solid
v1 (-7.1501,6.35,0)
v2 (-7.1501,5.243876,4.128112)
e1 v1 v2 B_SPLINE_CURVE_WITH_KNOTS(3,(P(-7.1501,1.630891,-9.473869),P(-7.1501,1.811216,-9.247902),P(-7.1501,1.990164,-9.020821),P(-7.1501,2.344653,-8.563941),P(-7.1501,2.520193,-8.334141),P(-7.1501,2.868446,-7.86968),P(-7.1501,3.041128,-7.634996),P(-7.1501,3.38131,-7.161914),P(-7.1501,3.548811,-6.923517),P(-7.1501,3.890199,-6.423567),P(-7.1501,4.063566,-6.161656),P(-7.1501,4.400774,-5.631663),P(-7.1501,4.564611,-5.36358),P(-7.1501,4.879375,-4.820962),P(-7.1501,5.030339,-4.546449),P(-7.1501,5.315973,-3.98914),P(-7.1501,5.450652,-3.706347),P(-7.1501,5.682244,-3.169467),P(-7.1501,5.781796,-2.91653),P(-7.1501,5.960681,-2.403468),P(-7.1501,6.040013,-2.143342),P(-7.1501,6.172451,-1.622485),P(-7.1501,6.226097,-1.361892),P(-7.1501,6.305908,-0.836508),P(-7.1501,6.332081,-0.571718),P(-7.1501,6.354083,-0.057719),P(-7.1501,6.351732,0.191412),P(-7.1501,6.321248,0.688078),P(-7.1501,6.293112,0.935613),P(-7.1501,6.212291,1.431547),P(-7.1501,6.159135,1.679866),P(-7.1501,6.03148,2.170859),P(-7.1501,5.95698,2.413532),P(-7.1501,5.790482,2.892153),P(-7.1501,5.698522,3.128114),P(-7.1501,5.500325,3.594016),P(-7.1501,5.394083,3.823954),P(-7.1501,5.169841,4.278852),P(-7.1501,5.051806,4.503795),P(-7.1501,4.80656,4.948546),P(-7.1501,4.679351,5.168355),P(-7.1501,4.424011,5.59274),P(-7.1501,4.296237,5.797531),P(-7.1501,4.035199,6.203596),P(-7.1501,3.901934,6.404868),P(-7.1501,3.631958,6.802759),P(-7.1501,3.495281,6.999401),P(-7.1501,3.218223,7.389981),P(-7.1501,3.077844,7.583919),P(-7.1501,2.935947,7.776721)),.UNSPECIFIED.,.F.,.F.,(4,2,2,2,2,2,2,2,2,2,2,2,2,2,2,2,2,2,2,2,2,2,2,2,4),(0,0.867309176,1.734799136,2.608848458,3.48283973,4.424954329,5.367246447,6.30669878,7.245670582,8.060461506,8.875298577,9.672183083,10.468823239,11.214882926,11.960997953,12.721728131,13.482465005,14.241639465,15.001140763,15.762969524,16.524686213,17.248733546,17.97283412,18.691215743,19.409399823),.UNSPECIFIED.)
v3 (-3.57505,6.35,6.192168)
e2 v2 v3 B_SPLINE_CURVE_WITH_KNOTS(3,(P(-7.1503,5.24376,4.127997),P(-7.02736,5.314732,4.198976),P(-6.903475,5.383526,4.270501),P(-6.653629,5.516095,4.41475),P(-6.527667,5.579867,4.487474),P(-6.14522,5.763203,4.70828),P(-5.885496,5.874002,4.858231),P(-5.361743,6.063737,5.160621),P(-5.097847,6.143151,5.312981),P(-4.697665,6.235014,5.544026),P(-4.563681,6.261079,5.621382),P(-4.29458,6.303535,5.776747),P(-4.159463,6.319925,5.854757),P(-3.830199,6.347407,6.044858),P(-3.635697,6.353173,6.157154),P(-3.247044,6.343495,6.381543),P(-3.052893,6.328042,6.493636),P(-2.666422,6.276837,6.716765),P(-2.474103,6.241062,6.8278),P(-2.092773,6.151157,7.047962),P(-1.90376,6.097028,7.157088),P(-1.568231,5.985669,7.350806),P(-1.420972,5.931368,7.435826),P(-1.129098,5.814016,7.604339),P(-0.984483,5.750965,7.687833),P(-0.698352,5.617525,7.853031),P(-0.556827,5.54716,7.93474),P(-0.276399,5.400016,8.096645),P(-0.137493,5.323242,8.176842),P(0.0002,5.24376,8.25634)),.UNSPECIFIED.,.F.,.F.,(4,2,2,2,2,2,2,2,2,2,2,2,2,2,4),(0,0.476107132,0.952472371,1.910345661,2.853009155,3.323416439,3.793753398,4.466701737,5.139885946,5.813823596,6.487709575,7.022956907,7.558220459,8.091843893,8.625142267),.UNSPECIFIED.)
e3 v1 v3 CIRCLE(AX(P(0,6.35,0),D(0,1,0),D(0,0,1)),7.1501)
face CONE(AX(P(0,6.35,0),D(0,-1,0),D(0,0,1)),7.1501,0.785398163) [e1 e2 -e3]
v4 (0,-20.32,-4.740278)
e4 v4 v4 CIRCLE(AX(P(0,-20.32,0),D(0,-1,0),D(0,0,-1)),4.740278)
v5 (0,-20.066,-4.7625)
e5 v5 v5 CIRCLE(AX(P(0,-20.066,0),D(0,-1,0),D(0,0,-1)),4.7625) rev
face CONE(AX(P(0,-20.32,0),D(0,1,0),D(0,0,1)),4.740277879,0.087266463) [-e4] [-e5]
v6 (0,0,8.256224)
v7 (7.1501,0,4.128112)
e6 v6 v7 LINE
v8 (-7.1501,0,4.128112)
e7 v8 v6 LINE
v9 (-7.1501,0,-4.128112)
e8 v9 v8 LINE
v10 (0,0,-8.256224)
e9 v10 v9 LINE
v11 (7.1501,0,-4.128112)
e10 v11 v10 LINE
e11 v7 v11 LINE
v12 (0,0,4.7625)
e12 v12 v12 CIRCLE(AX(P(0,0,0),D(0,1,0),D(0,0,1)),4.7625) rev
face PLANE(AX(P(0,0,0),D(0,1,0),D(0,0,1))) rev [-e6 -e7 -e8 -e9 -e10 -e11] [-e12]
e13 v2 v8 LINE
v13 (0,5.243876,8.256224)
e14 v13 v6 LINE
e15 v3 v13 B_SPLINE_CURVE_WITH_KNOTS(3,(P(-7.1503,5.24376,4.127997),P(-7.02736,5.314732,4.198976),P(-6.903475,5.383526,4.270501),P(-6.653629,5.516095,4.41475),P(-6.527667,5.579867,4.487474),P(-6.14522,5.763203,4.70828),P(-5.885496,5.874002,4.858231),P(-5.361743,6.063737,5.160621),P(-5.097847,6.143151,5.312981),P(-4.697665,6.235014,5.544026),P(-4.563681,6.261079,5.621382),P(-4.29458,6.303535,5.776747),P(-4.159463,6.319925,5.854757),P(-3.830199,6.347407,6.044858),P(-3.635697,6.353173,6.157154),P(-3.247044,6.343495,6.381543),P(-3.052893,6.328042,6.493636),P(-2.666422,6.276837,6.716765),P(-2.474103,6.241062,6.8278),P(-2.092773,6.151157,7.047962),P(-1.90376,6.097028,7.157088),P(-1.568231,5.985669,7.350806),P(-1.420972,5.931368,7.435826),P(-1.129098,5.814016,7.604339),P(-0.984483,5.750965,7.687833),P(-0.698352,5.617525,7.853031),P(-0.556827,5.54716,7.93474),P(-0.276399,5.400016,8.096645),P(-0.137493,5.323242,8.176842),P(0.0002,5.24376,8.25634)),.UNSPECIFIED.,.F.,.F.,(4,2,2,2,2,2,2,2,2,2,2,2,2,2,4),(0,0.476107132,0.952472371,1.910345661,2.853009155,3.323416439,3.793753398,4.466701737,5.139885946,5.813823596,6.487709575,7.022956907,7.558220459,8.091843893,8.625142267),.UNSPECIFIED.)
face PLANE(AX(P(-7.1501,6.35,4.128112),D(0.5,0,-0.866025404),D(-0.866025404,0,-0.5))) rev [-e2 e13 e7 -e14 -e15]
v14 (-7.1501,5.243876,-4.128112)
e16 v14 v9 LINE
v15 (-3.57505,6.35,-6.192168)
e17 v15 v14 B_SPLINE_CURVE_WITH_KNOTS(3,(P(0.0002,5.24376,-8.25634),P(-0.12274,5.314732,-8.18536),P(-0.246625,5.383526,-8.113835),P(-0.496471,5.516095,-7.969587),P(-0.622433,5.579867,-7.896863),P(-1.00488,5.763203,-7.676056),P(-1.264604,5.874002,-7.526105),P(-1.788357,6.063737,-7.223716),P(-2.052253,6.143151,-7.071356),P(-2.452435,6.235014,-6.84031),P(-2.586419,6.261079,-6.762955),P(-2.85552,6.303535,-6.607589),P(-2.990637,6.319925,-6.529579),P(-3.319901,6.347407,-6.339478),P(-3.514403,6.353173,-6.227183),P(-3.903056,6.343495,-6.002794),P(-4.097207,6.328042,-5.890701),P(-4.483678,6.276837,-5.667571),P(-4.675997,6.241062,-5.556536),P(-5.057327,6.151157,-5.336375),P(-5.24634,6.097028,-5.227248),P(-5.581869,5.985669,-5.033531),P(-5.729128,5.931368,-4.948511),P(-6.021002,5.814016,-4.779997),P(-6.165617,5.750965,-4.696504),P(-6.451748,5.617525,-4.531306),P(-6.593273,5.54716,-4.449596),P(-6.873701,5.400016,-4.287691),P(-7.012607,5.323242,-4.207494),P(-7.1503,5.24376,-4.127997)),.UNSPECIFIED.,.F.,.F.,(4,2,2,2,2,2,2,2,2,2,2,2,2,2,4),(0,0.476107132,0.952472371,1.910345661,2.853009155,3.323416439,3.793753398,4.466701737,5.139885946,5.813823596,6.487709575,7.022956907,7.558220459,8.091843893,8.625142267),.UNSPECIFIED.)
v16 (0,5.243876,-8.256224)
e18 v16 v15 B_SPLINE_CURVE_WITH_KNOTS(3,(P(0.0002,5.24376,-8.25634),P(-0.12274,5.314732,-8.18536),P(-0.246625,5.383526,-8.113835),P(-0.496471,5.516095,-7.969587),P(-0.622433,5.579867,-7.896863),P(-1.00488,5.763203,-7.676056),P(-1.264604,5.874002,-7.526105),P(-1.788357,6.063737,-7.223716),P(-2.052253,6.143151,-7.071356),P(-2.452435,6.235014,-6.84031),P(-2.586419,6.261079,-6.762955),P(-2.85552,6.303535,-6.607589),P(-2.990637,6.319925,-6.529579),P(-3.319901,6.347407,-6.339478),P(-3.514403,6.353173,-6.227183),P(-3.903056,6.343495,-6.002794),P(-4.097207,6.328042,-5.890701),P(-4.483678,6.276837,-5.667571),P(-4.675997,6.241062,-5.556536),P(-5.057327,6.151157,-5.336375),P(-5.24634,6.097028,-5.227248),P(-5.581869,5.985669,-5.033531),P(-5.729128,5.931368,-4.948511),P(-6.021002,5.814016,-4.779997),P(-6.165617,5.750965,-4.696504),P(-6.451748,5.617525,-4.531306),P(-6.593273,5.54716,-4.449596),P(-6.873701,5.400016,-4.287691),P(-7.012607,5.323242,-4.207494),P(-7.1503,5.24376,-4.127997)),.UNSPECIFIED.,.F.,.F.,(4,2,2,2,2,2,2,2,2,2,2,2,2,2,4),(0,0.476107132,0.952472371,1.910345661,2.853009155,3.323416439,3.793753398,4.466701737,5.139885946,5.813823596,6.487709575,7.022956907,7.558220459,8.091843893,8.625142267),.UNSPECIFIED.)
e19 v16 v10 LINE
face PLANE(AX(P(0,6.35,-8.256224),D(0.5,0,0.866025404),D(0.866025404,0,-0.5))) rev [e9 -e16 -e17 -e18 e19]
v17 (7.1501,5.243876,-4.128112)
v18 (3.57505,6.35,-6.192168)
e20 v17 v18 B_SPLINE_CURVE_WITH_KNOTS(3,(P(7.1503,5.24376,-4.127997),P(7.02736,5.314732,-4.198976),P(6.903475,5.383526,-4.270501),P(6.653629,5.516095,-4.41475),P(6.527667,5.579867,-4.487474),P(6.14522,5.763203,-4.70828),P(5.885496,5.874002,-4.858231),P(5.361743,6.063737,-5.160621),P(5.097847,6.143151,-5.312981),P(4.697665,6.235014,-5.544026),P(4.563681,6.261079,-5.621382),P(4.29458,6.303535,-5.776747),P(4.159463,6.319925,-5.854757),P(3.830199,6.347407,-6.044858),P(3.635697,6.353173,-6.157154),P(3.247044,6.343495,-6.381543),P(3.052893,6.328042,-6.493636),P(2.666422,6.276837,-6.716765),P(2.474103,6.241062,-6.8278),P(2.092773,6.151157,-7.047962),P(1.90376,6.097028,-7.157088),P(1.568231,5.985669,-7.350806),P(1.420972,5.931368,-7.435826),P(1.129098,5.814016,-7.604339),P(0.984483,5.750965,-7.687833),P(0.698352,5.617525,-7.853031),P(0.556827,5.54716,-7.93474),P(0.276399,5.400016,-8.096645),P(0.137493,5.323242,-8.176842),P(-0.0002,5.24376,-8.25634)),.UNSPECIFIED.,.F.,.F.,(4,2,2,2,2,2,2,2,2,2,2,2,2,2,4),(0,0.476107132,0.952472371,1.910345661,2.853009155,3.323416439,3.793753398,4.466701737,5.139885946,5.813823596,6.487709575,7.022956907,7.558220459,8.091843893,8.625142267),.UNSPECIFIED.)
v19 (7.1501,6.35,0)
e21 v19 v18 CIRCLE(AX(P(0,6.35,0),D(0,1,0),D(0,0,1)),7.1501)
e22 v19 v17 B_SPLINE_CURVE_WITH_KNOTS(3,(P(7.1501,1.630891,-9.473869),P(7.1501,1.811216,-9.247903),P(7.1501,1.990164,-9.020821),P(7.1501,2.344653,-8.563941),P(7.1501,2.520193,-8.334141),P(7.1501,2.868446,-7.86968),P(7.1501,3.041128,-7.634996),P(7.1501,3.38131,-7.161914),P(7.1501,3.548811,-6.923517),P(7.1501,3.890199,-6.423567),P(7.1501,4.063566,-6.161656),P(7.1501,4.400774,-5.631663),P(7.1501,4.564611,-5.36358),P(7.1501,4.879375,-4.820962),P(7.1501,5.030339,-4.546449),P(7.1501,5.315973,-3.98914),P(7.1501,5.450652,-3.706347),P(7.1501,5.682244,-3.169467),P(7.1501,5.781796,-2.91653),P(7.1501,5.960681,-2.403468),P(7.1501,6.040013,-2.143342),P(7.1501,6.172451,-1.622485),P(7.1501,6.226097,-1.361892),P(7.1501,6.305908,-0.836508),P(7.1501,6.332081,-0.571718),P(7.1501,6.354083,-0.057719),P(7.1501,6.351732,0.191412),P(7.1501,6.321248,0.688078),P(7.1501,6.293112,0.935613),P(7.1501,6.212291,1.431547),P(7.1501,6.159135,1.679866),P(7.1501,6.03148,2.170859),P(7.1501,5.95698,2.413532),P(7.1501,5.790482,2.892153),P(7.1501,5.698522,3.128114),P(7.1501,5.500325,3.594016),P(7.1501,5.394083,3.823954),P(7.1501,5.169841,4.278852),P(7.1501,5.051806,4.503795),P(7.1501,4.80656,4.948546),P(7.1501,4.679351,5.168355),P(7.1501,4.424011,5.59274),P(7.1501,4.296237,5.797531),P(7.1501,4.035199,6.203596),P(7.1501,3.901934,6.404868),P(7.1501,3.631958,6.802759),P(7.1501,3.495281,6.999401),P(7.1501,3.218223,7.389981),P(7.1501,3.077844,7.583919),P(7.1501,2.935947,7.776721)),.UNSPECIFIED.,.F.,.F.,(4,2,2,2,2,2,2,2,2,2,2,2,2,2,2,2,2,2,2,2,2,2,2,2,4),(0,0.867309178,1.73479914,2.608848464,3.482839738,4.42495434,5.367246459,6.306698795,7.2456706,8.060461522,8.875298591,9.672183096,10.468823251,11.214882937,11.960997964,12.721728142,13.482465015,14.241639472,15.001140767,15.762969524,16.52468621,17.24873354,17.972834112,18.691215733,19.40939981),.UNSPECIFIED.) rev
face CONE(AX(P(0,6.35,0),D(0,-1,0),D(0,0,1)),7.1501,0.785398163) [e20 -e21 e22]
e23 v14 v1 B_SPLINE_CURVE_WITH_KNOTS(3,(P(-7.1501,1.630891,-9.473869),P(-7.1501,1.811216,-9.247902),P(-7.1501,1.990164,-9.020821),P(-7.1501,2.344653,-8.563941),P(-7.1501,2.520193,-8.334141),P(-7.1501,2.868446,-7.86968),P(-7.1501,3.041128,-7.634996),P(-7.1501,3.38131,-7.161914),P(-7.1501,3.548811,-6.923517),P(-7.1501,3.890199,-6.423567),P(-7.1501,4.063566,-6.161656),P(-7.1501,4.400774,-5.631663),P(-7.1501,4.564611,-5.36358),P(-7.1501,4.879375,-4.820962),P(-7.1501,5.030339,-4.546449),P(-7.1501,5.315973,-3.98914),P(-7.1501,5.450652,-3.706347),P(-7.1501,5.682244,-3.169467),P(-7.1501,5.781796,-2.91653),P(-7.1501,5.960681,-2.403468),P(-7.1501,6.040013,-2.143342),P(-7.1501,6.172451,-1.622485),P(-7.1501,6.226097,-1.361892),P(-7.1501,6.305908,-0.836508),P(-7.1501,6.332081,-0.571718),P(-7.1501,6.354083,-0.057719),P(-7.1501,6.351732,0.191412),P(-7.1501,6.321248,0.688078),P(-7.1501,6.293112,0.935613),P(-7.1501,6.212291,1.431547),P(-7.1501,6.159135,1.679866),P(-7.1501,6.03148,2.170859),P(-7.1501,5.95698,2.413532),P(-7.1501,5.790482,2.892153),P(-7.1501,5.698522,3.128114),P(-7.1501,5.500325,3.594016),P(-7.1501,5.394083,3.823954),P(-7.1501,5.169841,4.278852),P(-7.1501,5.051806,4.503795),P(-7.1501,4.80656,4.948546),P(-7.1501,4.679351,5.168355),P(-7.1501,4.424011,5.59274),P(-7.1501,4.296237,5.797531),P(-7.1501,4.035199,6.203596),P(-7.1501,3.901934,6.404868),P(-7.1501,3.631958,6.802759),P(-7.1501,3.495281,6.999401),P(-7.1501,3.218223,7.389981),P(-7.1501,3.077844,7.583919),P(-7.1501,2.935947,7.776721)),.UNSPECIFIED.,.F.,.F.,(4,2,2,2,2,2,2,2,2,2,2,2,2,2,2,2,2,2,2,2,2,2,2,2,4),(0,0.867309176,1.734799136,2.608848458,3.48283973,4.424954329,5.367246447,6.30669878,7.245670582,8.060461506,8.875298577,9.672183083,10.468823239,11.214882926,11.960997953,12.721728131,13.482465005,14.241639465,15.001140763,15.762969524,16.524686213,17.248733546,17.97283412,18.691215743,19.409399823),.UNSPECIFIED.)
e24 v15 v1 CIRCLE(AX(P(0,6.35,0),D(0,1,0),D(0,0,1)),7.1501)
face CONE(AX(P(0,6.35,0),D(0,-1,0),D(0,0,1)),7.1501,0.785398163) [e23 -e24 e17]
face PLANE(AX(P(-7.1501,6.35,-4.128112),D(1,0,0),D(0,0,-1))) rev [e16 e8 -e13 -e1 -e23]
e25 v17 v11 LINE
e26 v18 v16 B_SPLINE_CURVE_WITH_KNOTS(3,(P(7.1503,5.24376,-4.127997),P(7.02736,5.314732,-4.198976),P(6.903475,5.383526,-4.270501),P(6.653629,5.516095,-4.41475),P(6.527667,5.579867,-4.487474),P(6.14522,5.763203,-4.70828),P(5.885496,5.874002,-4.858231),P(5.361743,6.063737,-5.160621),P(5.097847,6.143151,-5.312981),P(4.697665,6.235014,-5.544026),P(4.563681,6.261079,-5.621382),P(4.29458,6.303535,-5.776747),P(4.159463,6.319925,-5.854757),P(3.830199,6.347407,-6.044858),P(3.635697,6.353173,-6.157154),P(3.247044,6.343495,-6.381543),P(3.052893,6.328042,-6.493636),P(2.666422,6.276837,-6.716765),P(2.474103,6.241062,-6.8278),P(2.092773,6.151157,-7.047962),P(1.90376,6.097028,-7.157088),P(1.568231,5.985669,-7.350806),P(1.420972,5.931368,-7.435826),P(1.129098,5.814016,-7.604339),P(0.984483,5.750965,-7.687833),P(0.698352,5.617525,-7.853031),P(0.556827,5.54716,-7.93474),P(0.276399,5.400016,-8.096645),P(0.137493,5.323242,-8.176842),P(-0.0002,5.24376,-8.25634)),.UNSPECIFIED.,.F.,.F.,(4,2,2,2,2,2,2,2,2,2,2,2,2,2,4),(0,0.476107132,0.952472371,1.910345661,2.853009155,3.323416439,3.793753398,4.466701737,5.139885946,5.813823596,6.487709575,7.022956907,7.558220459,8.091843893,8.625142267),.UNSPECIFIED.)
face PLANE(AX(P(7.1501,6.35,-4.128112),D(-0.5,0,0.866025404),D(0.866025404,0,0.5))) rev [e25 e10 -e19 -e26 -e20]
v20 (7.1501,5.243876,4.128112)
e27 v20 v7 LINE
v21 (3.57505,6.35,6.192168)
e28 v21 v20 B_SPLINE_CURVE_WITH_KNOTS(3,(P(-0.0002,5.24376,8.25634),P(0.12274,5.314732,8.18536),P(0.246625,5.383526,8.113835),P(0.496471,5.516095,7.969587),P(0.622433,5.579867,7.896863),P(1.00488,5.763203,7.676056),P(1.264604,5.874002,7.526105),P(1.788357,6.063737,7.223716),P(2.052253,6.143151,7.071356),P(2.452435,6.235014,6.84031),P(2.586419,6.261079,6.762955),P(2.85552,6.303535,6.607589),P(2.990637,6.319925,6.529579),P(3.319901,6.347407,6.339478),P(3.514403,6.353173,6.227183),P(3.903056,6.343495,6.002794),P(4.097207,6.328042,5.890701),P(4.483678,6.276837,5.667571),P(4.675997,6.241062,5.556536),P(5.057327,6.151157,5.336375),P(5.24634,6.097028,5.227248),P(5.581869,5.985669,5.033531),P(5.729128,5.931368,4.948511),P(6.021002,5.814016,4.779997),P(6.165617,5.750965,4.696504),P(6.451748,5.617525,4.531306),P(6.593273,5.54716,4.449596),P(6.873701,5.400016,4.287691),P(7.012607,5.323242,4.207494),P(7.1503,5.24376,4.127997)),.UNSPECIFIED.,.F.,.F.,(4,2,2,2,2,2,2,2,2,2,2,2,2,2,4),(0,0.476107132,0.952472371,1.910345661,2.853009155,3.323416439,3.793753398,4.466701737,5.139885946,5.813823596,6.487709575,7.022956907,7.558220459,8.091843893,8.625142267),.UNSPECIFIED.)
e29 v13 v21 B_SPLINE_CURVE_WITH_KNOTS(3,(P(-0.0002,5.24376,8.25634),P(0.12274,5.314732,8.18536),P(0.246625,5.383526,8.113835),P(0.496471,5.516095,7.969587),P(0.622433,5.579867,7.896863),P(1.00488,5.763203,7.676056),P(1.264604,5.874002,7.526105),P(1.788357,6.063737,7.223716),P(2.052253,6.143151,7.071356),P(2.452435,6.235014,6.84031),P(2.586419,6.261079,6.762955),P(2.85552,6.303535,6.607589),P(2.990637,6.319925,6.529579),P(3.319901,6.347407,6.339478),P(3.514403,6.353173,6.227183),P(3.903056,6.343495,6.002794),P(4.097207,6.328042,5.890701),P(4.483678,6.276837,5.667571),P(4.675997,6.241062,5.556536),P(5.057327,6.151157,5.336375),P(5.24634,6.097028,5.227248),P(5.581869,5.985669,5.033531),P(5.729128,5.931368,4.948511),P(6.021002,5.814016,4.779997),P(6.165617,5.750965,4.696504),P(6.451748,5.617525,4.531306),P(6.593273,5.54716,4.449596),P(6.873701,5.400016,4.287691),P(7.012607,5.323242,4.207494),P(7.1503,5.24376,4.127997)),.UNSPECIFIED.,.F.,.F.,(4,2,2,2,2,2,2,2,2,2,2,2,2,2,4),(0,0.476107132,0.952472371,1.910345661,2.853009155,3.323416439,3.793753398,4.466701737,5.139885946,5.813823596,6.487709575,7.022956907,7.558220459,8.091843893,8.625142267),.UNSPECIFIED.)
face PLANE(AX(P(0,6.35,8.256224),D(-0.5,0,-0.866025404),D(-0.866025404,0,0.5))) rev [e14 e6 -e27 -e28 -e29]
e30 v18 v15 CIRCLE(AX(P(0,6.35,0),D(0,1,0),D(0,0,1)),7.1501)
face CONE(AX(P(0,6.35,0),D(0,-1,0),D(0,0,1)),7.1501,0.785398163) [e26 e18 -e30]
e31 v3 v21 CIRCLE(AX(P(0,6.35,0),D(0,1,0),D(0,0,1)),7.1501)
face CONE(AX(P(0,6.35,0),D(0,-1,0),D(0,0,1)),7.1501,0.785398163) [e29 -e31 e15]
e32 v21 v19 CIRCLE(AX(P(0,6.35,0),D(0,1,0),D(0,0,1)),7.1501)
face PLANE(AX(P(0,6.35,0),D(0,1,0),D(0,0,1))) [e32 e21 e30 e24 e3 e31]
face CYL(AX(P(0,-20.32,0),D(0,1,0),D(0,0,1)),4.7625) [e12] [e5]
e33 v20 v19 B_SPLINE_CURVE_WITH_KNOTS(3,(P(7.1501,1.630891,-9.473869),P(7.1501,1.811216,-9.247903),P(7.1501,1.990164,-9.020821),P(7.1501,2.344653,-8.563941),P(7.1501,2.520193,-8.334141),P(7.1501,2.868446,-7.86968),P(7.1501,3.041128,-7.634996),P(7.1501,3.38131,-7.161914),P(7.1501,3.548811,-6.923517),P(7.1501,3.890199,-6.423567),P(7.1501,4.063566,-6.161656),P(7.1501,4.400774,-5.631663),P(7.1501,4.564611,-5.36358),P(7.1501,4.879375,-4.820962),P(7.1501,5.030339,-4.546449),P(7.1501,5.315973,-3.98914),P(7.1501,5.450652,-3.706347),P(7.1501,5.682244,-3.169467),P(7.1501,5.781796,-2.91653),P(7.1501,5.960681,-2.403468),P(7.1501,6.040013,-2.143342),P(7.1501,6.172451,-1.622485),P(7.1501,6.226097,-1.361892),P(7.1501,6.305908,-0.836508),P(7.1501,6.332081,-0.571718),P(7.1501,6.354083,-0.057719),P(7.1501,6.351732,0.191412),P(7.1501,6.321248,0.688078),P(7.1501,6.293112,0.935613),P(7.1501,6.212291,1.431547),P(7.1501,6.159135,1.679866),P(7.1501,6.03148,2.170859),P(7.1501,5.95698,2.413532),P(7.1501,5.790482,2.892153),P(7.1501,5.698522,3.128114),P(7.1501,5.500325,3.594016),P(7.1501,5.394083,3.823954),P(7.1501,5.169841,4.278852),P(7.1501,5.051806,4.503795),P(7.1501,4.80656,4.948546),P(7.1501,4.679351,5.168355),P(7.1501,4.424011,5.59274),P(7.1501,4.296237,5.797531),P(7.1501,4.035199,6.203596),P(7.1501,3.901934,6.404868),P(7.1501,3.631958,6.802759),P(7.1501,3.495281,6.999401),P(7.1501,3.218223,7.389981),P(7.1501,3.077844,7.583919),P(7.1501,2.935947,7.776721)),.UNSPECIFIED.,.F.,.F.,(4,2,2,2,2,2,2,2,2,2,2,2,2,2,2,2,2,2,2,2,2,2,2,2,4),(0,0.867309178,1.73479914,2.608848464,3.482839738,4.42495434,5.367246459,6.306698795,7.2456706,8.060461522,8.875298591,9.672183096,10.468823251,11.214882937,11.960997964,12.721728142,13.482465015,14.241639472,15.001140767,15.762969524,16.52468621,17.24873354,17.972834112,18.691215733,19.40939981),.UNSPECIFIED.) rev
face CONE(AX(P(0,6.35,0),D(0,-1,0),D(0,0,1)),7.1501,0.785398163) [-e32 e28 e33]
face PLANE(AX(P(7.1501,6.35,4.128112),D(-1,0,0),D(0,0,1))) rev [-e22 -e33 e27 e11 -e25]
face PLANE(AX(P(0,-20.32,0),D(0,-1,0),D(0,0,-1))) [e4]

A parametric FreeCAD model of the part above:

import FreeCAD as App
import Part
import Sketcher
from FreeCAD import Vector
Q = App.Units.Quantity


def edges_at(feature, points):
    """Names of the edges that pass closest to the given points."""
    edges = feature.Shape.Edges
    near = lambda p: min(range(len(edges)), key=lambda i: edges[i].distToShape(Part.Vertex(*p))[0])
    return sorted({f"Edge{near(p) + 1}" for p in points})


def add_polygon(sketch, points):
    """Adds a closed chain of lines whose ends are joined by coincident constraints."""
    first, n = sketch.GeometryCount, len(points)
    for a, b in zip(points, points[1:] + points[:1]):
        sketch.addGeometry(Part.LineSegment(App.Vector(*a, 0), App.Vector(*b, 0)), False)
    for i in range(n):
        sketch.addConstraint(Sketcher.Constraint("Coincident", first + i, 2, first + (i + 1) % n, 1))

doc = App.newDocument("Part")
body = doc.addObject("PartDesign::Body", "Body")

sketch1 = body.newObject("Sketcher::SketchObject", "Sketch")
sketch1.AttachmentSupport = (doc.getObject("XZ_Plane"), [""])
sketch1.MapMode = "FlatFace"
add_polygon(sketch1, [(0, -8), (-7, -4), (-7, 4), (0, 8), (7, 4), (7, -4)])
sketch1.addConstraint([
    Sketcher.Constraint("Vertical", 1),
    Sketcher.Constraint("Vertical", 4),
    Sketcher.Constraint("Symmetric", 0, 2, 3, 2, -1, 1),
    Sketcher.Constraint("Symmetric", 2, 2, 5, 2, -1, 1),
    Sketcher.Constraint("PointOnObject", 2, 2, -2),
    Sketcher.Constraint("Parallel", 2, 5),
    Sketcher.Constraint("Horizontal", 1, 2, 3, 2),
    Sketcher.Constraint("Angle", 0, Q("150 deg")),
    Sketcher.Constraint("DistanceX", 1, 2, 3, 2, Q("0.563 in")),
    Sketcher.Constraint("DistanceY", 1, 1, 1, 2, 8.256224),
])
pad1 = body.newObject("PartDesign::Pad", "Pad")
pad1.Profile = sketch1
pad1.Length = Q("0.25 in")
pad1.Reversed = True

sketch2 = body.newObject("Sketcher::SketchObject", "Sketch001")
sketch2.AttachmentSupport = (doc.getObject("XZ_Plane"), [""])
sketch2.MapMode = "FlatFace"
sketch2.addGeometry(Part.Circle(Vector(0, 0, 0), Vector(0, 0, 1), 4.8), False)
sketch2.addConstraint([
    Sketcher.Constraint("Coincident", 0, 3, -1, 1),
    Sketcher.Constraint("Diameter", 0, Q("0.375 in")),
])
pad2 = body.newObject("PartDesign::Pad", "Pad001")
pad2.Profile = sketch2
pad2.Length = Q("0.8 in")

sketch3 = body.newObject("Sketcher::SketchObject", "Sketch002")
sketch3.AttachmentSupport = (doc.getObject("XZ_Plane"), [""])
sketch3.MapMode = "FlatFace"
sketch3.AttachmentOffset = App.Placement(Vector(0, 0, -0.25 * 25.4), App.Rotation())
add_polygon(sketch3, [(-32, -33), (-32, 33), (32, 33), (32, -33)])
sketch3.addGeometry(Part.Circle(Vector(0, 0, 0), Vector(0, 0, 1), 7), False)
sketch3.addConstraint([
    Sketcher.Constraint("Vertical", 0),
    Sketcher.Constraint("Horizontal", 1),
    Sketcher.Constraint("Vertical", 2),
    Sketcher.Constraint("Horizontal", 3),
    Sketcher.Constraint("Coincident", 4, 3, -1, 1),
    Sketcher.Constraint("Symmetric", 0, 2, 2, 2, -1, 1),
    Sketcher.Constraint("Diameter", 4, Q("0.563 in")),
    Sketcher.Constraint("DistanceX", 1, 1, 1, 2, 63.834),
    Sketcher.Constraint("DistanceY", 0, 1, 0, 2, 66.046),
])
pocket1 = body.newObject("PartDesign::Pocket", "Pocket")
pocket1.Profile = sketch3
pocket1.Length = Q("0.8 in")
pocket1.Reversed = True
pocket1.TaperAngle = 45
doc.recompute()

chamfer = body.newObject("PartDesign::Chamfer", "Chamfer")
chamfer.Base = (pocket1, edges_at(pocket1, [(-4.763, -20.32, 0)]))
chamfer.ChamferType = "Two distances"
chamfer.Size = Q("0.01 in")
chamfer.Size2 = 0.022222

doc.recompute()
